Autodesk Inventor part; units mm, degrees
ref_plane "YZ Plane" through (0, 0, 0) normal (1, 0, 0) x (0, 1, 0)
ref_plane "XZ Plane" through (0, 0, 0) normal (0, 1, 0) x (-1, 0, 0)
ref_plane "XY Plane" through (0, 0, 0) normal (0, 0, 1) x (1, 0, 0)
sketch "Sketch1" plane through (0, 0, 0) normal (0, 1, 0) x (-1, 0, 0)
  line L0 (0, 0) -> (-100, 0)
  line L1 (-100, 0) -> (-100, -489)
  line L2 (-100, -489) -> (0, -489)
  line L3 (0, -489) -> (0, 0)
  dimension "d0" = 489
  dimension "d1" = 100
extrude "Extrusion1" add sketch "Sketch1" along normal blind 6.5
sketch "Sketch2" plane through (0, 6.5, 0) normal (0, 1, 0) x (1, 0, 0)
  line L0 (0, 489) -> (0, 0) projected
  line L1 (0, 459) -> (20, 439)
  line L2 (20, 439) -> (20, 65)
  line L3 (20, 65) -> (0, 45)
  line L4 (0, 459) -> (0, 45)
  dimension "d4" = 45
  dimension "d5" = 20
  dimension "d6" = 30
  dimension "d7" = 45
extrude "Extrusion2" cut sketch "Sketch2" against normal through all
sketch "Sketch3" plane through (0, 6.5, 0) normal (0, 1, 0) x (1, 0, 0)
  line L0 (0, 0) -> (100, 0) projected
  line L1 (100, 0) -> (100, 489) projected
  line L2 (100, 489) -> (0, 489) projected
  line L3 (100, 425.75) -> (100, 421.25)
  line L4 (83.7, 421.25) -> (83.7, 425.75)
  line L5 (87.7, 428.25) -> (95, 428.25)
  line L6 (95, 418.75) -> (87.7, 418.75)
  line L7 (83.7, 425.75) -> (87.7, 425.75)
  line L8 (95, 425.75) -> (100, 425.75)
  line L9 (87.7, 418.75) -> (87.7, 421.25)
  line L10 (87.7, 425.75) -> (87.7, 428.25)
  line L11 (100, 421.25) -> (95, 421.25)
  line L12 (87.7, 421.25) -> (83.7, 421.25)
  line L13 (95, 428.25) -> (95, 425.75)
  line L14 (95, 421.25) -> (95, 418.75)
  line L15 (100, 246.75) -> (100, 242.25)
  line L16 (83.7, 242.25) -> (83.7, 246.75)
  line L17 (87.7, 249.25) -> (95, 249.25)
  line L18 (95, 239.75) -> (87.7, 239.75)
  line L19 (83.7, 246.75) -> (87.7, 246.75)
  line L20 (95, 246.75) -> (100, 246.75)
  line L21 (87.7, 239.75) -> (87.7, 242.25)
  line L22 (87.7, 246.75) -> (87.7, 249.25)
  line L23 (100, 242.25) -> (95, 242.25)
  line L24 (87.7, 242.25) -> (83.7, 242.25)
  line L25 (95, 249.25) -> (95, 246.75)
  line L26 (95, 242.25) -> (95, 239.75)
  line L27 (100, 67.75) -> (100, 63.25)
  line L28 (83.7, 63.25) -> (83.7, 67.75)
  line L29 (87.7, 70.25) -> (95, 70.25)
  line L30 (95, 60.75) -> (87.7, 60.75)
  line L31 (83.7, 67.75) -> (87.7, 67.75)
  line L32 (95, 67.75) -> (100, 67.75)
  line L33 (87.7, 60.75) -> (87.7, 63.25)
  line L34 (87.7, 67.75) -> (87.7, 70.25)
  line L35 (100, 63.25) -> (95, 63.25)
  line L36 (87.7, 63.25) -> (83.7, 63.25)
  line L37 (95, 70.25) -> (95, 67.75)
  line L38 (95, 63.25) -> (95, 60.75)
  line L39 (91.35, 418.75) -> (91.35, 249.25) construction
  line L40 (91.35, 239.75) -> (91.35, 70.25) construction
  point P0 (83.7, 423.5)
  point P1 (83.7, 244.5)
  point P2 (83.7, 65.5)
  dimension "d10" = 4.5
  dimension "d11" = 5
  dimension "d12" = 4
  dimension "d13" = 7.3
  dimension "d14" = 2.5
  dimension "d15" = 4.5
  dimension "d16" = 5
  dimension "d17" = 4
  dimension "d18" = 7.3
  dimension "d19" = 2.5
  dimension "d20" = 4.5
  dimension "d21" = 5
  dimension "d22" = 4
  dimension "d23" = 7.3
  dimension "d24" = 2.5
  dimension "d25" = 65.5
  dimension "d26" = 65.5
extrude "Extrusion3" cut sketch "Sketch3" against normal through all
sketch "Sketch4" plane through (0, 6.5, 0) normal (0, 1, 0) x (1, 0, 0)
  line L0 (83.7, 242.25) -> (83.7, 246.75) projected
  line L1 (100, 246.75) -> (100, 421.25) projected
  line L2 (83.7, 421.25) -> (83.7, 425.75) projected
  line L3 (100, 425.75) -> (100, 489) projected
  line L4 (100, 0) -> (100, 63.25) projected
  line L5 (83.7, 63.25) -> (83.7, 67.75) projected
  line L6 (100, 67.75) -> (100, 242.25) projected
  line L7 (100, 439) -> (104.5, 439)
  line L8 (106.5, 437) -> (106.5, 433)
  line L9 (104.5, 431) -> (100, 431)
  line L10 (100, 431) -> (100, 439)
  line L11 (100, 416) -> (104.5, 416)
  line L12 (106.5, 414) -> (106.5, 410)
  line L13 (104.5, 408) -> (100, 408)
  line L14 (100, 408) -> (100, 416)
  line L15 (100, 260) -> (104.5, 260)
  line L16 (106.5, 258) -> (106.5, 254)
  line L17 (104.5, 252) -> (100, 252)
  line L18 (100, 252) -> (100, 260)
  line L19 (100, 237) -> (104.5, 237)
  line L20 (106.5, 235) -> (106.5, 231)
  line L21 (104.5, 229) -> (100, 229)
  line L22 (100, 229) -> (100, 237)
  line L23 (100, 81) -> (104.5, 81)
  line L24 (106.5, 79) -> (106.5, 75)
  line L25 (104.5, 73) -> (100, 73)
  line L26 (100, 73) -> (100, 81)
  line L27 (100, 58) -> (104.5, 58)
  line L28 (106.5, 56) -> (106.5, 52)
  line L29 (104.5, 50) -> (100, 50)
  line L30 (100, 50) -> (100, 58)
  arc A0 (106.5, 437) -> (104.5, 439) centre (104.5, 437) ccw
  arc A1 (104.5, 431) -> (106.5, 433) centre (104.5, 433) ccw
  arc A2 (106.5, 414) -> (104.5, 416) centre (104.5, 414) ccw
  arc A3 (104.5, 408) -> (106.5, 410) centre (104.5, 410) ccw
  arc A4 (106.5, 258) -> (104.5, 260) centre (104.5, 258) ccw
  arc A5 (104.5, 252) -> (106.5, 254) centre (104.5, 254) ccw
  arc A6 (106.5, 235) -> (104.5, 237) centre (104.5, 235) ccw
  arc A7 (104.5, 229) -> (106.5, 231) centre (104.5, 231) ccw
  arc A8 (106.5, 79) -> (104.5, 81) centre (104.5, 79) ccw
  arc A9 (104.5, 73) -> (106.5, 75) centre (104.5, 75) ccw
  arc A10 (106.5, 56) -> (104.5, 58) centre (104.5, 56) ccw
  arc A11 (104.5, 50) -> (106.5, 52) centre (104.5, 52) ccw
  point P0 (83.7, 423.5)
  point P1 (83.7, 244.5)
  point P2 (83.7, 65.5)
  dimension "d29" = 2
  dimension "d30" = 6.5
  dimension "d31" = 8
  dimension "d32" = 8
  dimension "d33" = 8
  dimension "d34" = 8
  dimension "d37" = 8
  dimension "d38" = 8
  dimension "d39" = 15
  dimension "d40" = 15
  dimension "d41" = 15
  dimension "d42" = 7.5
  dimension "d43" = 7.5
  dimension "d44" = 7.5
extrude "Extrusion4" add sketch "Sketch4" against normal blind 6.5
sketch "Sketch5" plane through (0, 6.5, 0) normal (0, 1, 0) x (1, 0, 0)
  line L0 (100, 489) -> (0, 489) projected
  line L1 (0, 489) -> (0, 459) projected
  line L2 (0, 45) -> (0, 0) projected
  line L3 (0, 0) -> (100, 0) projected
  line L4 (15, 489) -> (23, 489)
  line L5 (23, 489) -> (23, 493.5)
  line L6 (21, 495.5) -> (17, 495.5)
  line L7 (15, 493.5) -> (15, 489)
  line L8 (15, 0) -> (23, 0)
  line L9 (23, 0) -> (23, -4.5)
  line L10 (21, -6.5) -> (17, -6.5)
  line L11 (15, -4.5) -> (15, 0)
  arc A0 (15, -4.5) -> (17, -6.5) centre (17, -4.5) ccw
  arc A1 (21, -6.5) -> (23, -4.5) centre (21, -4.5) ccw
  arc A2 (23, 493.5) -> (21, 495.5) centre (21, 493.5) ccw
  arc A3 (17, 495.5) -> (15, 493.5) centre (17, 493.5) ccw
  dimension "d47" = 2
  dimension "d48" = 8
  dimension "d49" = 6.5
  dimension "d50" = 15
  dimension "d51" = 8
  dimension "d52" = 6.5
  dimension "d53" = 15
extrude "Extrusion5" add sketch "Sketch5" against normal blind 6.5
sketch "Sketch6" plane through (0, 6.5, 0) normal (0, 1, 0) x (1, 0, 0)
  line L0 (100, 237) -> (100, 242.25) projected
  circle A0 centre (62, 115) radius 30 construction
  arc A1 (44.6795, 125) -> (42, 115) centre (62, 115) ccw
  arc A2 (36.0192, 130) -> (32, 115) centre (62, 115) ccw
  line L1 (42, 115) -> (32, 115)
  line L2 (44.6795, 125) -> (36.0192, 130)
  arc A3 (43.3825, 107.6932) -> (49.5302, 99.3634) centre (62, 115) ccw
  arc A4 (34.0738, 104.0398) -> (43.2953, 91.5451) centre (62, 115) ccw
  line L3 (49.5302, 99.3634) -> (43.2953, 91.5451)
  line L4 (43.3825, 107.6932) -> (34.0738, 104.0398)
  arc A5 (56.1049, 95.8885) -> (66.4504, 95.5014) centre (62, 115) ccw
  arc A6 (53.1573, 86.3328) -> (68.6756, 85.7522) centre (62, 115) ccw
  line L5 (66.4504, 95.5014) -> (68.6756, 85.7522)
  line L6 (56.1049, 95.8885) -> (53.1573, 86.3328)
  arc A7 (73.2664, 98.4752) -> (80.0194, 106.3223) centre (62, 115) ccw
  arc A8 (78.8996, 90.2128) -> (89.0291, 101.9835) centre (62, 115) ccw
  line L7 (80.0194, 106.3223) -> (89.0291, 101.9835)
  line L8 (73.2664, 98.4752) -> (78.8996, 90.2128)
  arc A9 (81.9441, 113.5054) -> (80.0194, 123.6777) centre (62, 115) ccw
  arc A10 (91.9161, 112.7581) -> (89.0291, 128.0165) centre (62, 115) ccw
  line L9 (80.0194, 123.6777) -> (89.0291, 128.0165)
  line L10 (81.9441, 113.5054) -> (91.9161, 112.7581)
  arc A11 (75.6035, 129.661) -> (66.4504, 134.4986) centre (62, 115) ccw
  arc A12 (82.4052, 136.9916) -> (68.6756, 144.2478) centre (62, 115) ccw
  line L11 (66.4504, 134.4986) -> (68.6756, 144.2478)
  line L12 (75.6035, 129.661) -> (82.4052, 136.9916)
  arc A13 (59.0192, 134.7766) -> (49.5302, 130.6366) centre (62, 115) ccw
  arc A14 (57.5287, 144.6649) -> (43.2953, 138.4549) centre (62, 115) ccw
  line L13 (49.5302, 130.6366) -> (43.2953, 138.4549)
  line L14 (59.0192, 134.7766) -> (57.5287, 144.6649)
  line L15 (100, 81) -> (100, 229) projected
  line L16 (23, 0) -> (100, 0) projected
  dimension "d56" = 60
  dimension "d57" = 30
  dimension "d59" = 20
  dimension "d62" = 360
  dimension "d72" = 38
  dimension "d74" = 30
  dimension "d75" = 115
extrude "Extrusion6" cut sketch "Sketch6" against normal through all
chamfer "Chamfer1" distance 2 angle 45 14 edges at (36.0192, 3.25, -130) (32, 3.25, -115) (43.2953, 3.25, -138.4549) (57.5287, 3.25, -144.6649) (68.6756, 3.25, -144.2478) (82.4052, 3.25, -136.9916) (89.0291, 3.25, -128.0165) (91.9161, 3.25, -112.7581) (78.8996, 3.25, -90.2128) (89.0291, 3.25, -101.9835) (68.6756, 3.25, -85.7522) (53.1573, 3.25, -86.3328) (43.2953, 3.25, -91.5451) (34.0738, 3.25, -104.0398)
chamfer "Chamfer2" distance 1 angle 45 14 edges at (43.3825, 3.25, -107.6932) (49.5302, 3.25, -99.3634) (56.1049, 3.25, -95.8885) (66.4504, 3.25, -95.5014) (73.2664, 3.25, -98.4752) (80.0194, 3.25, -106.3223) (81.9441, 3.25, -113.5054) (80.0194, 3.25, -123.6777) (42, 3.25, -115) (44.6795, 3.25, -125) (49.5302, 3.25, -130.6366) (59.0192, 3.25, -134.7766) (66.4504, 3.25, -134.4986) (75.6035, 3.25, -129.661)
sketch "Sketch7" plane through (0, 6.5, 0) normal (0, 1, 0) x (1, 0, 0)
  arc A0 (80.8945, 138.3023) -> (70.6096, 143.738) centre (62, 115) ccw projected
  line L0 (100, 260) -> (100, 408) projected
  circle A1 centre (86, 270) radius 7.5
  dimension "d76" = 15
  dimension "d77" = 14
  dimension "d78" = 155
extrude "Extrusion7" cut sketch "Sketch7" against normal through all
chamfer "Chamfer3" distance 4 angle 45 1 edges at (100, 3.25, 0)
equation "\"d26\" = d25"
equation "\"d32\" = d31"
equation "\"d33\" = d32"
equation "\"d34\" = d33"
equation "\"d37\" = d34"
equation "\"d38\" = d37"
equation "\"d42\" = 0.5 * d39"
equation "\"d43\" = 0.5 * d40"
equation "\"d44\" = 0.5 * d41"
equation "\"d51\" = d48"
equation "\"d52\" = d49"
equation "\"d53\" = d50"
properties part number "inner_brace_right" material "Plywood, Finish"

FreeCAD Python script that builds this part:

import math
import FreeCAD as App
import Part
import Sketcher
Q = App.Units.Quantity


def edges_at(feature, points):
    """Names of the edges that pass closest to the given points."""
    edges = feature.Shape.Edges
    near = lambda p: min(range(len(edges)), key=lambda i: edges[i].distToShape(Part.Vertex(*p))[0])
    return sorted({f"Edge{near(p) + 1}" for p in points})

doc = App.newDocument("Part")
body = doc.addObject("PartDesign::Body", "Body")

# Sketch on XZ plane
sketch1 = doc.addObject("Sketcher::SketchObject", "Sketch")
body.addObject(sketch1)
sketch1.AttachmentSupport = (doc.XZ_Plane, [""])
sketch1.MapMode = "FlatFace"
sketch1.addGeometry(Part.LineSegment(App.Vector(0, -489, 0), App.Vector(0, 0, 0)), False)
sketch1.addGeometry(Part.LineSegment(App.Vector(0, 0, 0), App.Vector(100, 0, 0)), False)
sketch1.addGeometry(Part.LineSegment(App.Vector(100, 0, 0), App.Vector(100, -489, 0)), False)
sketch1.addGeometry(Part.LineSegment(App.Vector(100, -489, 0), App.Vector(0, -489, 0)), False)
sketch1.addConstraint(Sketcher.Constraint("Coincident", 0, 2, 1, 1))
sketch1.addConstraint(Sketcher.Constraint("Coincident", 1, 2, 2, 1))
sketch1.addConstraint(Sketcher.Constraint("Coincident", 2, 2, 3, 1))
sketch1.addConstraint(Sketcher.Constraint("Coincident", 3, 2, 0, 1))
sketch1.addConstraint(Sketcher.Constraint("Vertical", 0))
sketch1.addConstraint(Sketcher.Constraint("Horizontal", 1))
sketch1.addConstraint(Sketcher.Constraint("Vertical", 2))
sketch1.addConstraint(Sketcher.Constraint("Horizontal", 3))
sketch1.addConstraint(Sketcher.Constraint("Coincident", 0, 2, -1, 1))
sketch1.addConstraint(Sketcher.Constraint("DistanceX", 1, 1, 1, 2, Q("100 mm")))
sketch1.addConstraint(Sketcher.Constraint("DistanceY", 0, 1, 0, 2, Q("489 mm")))
pad1 = doc.addObject("PartDesign::Pad", "Pad")
body.addObject(pad1)
pad1.Profile = sketch1
pad1.Length = 6.5
pad1.Reversed = True

# Sketch on XZ plane
sketch2 = doc.addObject("Sketcher::SketchObject", "Sketch001")
body.addObject(sketch2)
sketch2.AttachmentSupport = (doc.XZ_Plane, [""])
sketch2.MapMode = "FlatFace"
sketch2.AttachmentOffset = App.Placement(App.Vector(0, 0, -6.5), App.Rotation())
sketch2.addGeometry(Part.LineSegment(App.Vector(20, -439, 0), App.Vector(0, -459, 0)), False)
sketch2.addGeometry(Part.LineSegment(App.Vector(0, -459, 0), App.Vector(0, -45, 0)), False)
sketch2.addGeometry(Part.LineSegment(App.Vector(0, -45, 0), App.Vector(20, -65, 0)), False)
sketch2.addGeometry(Part.LineSegment(App.Vector(20, -65, 0), App.Vector(20, -439, 0)), False)
sketch2.addConstraint(Sketcher.Constraint("Coincident", 0, 2, 1, 1))
sketch2.addConstraint(Sketcher.Constraint("Coincident", 1, 2, 2, 1))
sketch2.addConstraint(Sketcher.Constraint("Coincident", 2, 2, 3, 1))
sketch2.addConstraint(Sketcher.Constraint("Coincident", 3, 2, 0, 1))
sketch2.addConstraint(Sketcher.Constraint("Vertical", 1))
sketch2.addConstraint(Sketcher.Constraint("Vertical", 3))
sketch2.addConstraint(Sketcher.Constraint("PointOnObject", 0, 2, -2))
sketch2.addConstraint(Sketcher.Constraint("Perpendicular", 0, 2))
sketch2.addConstraint(Sketcher.Constraint("Equal", 0, 2))
sketch2.addConstraint(Sketcher.Constraint("DistanceY", 1, 2, -1, 1, Q("45 mm")))
sketch2.addConstraint(Sketcher.Constraint("DistanceX", -1, 1, 2, 2, Q("20 mm")))
sketch2.addConstraint(Sketcher.Constraint("DistanceY", 1, 1, 1, 2, Q("414 mm")))
pocket1 = doc.addObject("PartDesign::Pocket", "Pocket")
body.addObject(pocket1)
pocket1.Profile = sketch2
pocket1.Type = "ThroughAll"
pocket1.Reversed = True

# Sketch on XZ plane
sketch3 = doc.addObject("Sketcher::SketchObject", "Sketch002")
body.addObject(sketch3)
sketch3.AttachmentSupport = (doc.XZ_Plane, [""])
sketch3.MapMode = "FlatFace"
sketch3.AttachmentOffset = App.Placement(App.Vector(0, 0, -6.5), App.Rotation())
sketch3.addGeometry(Part.LineSegment(App.Vector(95, -63.25, 0), App.Vector(100, -63.25, 0)), False)
sketch3.addGeometry(Part.LineSegment(App.Vector(100, -63.25, 0), App.Vector(100, -67.75, 0)), False)
sketch3.addGeometry(Part.LineSegment(App.Vector(100, -67.75, 0), App.Vector(95, -67.75, 0)), False)
sketch3.addGeometry(Part.LineSegment(App.Vector(95, -67.75, 0), App.Vector(95, -70.25, 0)), False)
sketch3.addGeometry(Part.LineSegment(App.Vector(95, -70.25, 0), App.Vector(87.7, -70.25, 0)), False)
sketch3.addGeometry(Part.LineSegment(App.Vector(87.7, -70.25, 0), App.Vector(87.7, -67.75, 0)), False)
sketch3.addGeometry(Part.LineSegment(App.Vector(87.7, -67.75, 0), App.Vector(83.7, -67.75, 0)), False)
sketch3.addGeometry(Part.LineSegment(App.Vector(83.7, -67.75, 0), App.Vector(83.7, -63.25, 0)), False)
sketch3.addGeometry(Part.LineSegment(App.Vector(83.7, -63.25, 0), App.Vector(87.7, -63.25, 0)), False)
sketch3.addGeometry(Part.LineSegment(App.Vector(87.7, -63.25, 0), App.Vector(87.7, -60.75, 0)), False)
sketch3.addGeometry(Part.LineSegment(App.Vector(87.7, -60.75, 0), App.Vector(95, -60.75, 0)), False)
sketch3.addGeometry(Part.LineSegment(App.Vector(95, -60.75, 0), App.Vector(95, -63.25, 0)), False)
sketch3.addGeometry(Part.LineSegment(App.Vector(95, -421.25, 0), App.Vector(100, -421.25, 0)), False)
sketch3.addGeometry(Part.LineSegment(App.Vector(100, -421.25, 0), App.Vector(100, -425.75, 0)), False)
sketch3.addGeometry(Part.LineSegment(App.Vector(100, -425.75, 0), App.Vector(95, -425.75, 0)), False)
sketch3.addGeometry(Part.LineSegment(App.Vector(95, -425.75, 0), App.Vector(95, -428.25, 0)), False)
sketch3.addGeometry(Part.LineSegment(App.Vector(95, -428.25, 0), App.Vector(87.7, -428.25, 0)), False)
sketch3.addGeometry(Part.LineSegment(App.Vector(87.7, -428.25, 0), App.Vector(87.7, -425.75, 0)), False)
sketch3.addGeometry(Part.LineSegment(App.Vector(87.7, -425.75, 0), App.Vector(83.7, -425.75, 0)), False)
sketch3.addGeometry(Part.LineSegment(App.Vector(83.7, -425.75, 0), App.Vector(83.7, -421.25, 0)), False)
sketch3.addGeometry(Part.LineSegment(App.Vector(83.7, -421.25, 0), App.Vector(87.7, -421.25, 0)), False)
sketch3.addGeometry(Part.LineSegment(App.Vector(87.7, -421.25, 0), App.Vector(87.7, -418.75, 0)), False)
sketch3.addGeometry(Part.LineSegment(App.Vector(87.7, -418.75, 0), App.Vector(95, -418.75, 0)), False)
sketch3.addGeometry(Part.LineSegment(App.Vector(95, -418.75, 0), App.Vector(95, -421.25, 0)), False)
sketch3.addGeometry(Part.LineSegment(App.Vector(95, -242.25, 0), App.Vector(100, -242.25, 0)), False)
sketch3.addGeometry(Part.LineSegment(App.Vector(100, -242.25, 0), App.Vector(100, -246.75, 0)), False)
sketch3.addGeometry(Part.LineSegment(App.Vector(100, -246.75, 0), App.Vector(95, -246.75, 0)), False)
sketch3.addGeometry(Part.LineSegment(App.Vector(95, -246.75, 0), App.Vector(95, -249.25, 0)), False)
sketch3.addGeometry(Part.LineSegment(App.Vector(95, -249.25, 0), App.Vector(87.7, -249.25, 0)), False)
sketch3.addGeometry(Part.LineSegment(App.Vector(87.7, -249.25, 0), App.Vector(87.7, -246.75, 0)), False)
sketch3.addGeometry(Part.LineSegment(App.Vector(87.7, -246.75, 0), App.Vector(83.7, -246.75, 0)), False)
sketch3.addGeometry(Part.LineSegment(App.Vector(83.7, -246.75, 0), App.Vector(83.7, -242.25, 0)), False)
sketch3.addGeometry(Part.LineSegment(App.Vector(83.7, -242.25, 0), App.Vector(87.7, -242.25, 0)), False)
sketch3.addGeometry(Part.LineSegment(App.Vector(87.7, -242.25, 0), App.Vector(87.7, -239.75, 0)), False)
sketch3.addGeometry(Part.LineSegment(App.Vector(87.7, -239.75, 0), App.Vector(95, -239.75, 0)), False)
sketch3.addGeometry(Part.LineSegment(App.Vector(95, -239.75, 0), App.Vector(95, -242.25, 0)), False)
sketch3.addConstraint(Sketcher.Constraint("Coincident", 0, 2, 1, 1))
sketch3.addConstraint(Sketcher.Constraint("Coincident", 1, 2, 2, 1))
sketch3.addConstraint(Sketcher.Constraint("Coincident", 2, 2, 3, 1))
sketch3.addConstraint(Sketcher.Constraint("Coincident", 3, 2, 4, 1))
sketch3.addConstraint(Sketcher.Constraint("Coincident", 4, 2, 5, 1))
sketch3.addConstraint(Sketcher.Constraint("Coincident", 5, 2, 6, 1))
sketch3.addConstraint(Sketcher.Constraint("Coincident", 6, 2, 7, 1))
sketch3.addConstraint(Sketcher.Constraint("Coincident", 7, 2, 8, 1))
sketch3.addConstraint(Sketcher.Constraint("Coincident", 8, 2, 9, 1))
sketch3.addConstraint(Sketcher.Constraint("Coincident", 9, 2, 10, 1))
sketch3.addConstraint(Sketcher.Constraint("Coincident", 10, 2, 11, 1))
sketch3.addConstraint(Sketcher.Constraint("Coincident", 11, 2, 0, 1))
sketch3.addConstraint(Sketcher.Constraint("Coincident", 12, 2, 13, 1))
sketch3.addConstraint(Sketcher.Constraint("Coincident", 13, 2, 14, 1))
sketch3.addConstraint(Sketcher.Constraint("Coincident", 14, 2, 15, 1))
sketch3.addConstraint(Sketcher.Constraint("Coincident", 15, 2, 16, 1))
sketch3.addConstraint(Sketcher.Constraint("Coincident", 16, 2, 17, 1))
sketch3.addConstraint(Sketcher.Constraint("Coincident", 17, 2, 18, 1))
sketch3.addConstraint(Sketcher.Constraint("Coincident", 18, 2, 19, 1))
sketch3.addConstraint(Sketcher.Constraint("Coincident", 19, 2, 20, 1))
sketch3.addConstraint(Sketcher.Constraint("Coincident", 20, 2, 21, 1))
sketch3.addConstraint(Sketcher.Constraint("Coincident", 21, 2, 22, 1))
sketch3.addConstraint(Sketcher.Constraint("Coincident", 22, 2, 23, 1))
sketch3.addConstraint(Sketcher.Constraint("Coincident", 23, 2, 12, 1))
sketch3.addConstraint(Sketcher.Constraint("Coincident", 24, 2, 25, 1))
sketch3.addConstraint(Sketcher.Constraint("Coincident", 25, 2, 26, 1))
sketch3.addConstraint(Sketcher.Constraint("Coincident", 26, 2, 27, 1))
sketch3.addConstraint(Sketcher.Constraint("Coincident", 27, 2, 28, 1))
sketch3.addConstraint(Sketcher.Constraint("Coincident", 28, 2, 29, 1))
sketch3.addConstraint(Sketcher.Constraint("Coincident", 29, 2, 30, 1))
sketch3.addConstraint(Sketcher.Constraint("Coincident", 30, 2, 31, 1))
sketch3.addConstraint(Sketcher.Constraint("Coincident", 31, 2, 32, 1))
sketch3.addConstraint(Sketcher.Constraint("Coincident", 32, 2, 33, 1))
sketch3.addConstraint(Sketcher.Constraint("Coincident", 33, 2, 34, 1))
sketch3.addConstraint(Sketcher.Constraint("Coincident", 34, 2, 35, 1))
sketch3.addConstraint(Sketcher.Constraint("Coincident", 35, 2, 24, 1))
sketch3.addConstraint(Sketcher.Constraint("Horizontal", 0))
sketch3.addConstraint(Sketcher.Constraint("Vertical", 1))
sketch3.addConstraint(Sketcher.Constraint("Horizontal", 2))
sketch3.addConstraint(Sketcher.Constraint("Vertical", 3))
sketch3.addConstraint(Sketcher.Constraint("Horizontal", 4))
sketch3.addConstraint(Sketcher.Constraint("Vertical", 5))
sketch3.addConstraint(Sketcher.Constraint("Horizontal", 6))
sketch3.addConstraint(Sketcher.Constraint("Vertical", 7))
sketch3.addConstraint(Sketcher.Constraint("Horizontal", 8))
sketch3.addConstraint(Sketcher.Constraint("Vertical", 9))
sketch3.addConstraint(Sketcher.Constraint("Horizontal", 10))
sketch3.addConstraint(Sketcher.Constraint("Vertical", 11))
sketch3.addConstraint(Sketcher.Constraint("Horizontal", 12))
sketch3.addConstraint(Sketcher.Constraint("Vertical", 13))
sketch3.addConstraint(Sketcher.Constraint("Horizontal", 14))
sketch3.addConstraint(Sketcher.Constraint("Vertical", 15))
sketch3.addConstraint(Sketcher.Constraint("Horizontal", 16))
sketch3.addConstraint(Sketcher.Constraint("Vertical", 17))
sketch3.addConstraint(Sketcher.Constraint("Horizontal", 18))
sketch3.addConstraint(Sketcher.Constraint("Vertical", 19))
sketch3.addConstraint(Sketcher.Constraint("Horizontal", 20))
sketch3.addConstraint(Sketcher.Constraint("Vertical", 21))
sketch3.addConstraint(Sketcher.Constraint("Horizontal", 22))
sketch3.addConstraint(Sketcher.Constraint("Vertical", 23))
sketch3.addConstraint(Sketcher.Constraint("Horizontal", 24))
sketch3.addConstraint(Sketcher.Constraint("Vertical", 25))
sketch3.addConstraint(Sketcher.Constraint("Horizontal", 26))
sketch3.addConstraint(Sketcher.Constraint("Vertical", 27))
sketch3.addConstraint(Sketcher.Constraint("Horizontal", 28))
sketch3.addConstraint(Sketcher.Constraint("Vertical", 29))
sketch3.addConstraint(Sketcher.Constraint("Horizontal", 30))
sketch3.addConstraint(Sketcher.Constraint("Vertical", 31))
sketch3.addConstraint(Sketcher.Constraint("Horizontal", 32))
sketch3.addConstraint(Sketcher.Constraint("Vertical", 33))
sketch3.addConstraint(Sketcher.Constraint("Horizontal", 34))
sketch3.addConstraint(Sketcher.Constraint("Vertical", 35))
sketch3.addConstraint(Sketcher.Constraint("Horizontal", 2, 2, 5, 2))
sketch3.addConstraint(Sketcher.Constraint("Horizontal", 0, 2, 7, 2))
sketch3.addConstraint(Sketcher.Constraint("Horizontal", 14, 2, 17, 2))
sketch3.addConstraint(Sketcher.Constraint("Horizontal", 12, 2, 19, 2))
sketch3.addConstraint(Sketcher.Constraint("Horizontal", 26, 2, 29, 2))
sketch3.addConstraint(Sketcher.Constraint("Horizontal", 24, 2, 31, 2))
sketch3.addConstraint(Sketcher.Constraint("Vertical", 5, 2, 8, 2))
sketch3.addConstraint(Sketcher.Constraint("Vertical", 3, 2, 10, 2))
sketch3.addConstraint(Sketcher.Constraint("Vertical", 1, 2, 12, 2))
sketch3.addConstraint(Sketcher.Constraint("Vertical", 11, 2, 14, 2))
sketch3.addConstraint(Sketcher.Constraint("Vertical", 9, 2, 16, 2))
sketch3.addConstraint(Sketcher.Constraint("Vertical", 7, 2, 18, 2))
sketch3.addConstraint(Sketcher.Constraint("Vertical", 17, 2, 20, 2))
sketch3.addConstraint(Sketcher.Constraint("Vertical", 15, 2, 22, 2))
sketch3.addConstraint(Sketcher.Constraint("Vertical", 13, 2, 24, 2))
sketch3.addConstraint(Sketcher.Constraint("Vertical", 23, 2, 26, 2))
sketch3.addConstraint(Sketcher.Constraint("Vertical", 21, 2, 28, 2))
sketch3.addConstraint(Sketcher.Constraint("Vertical", 19, 2, 30, 2))
sketch3.addConstraint(Sketcher.Constraint("Vertical", 29, 2, 32, 2))
sketch3.addConstraint(Sketcher.Constraint("Vertical", 27, 2, 34, 2))
sketch3.addConstraint(Sketcher.Constraint("Equal", 5, 9))
sketch3.addConstraint(Sketcher.Constraint("Equal", 7, 13))
sketch3.addConstraint(Sketcher.Constraint("Equal", 11, 15))
sketch3.addConstraint(Sketcher.Constraint("Equal", 17, 21))
sketch3.addConstraint(Sketcher.Constraint("Equal", 19, 25))
sketch3.addConstraint(Sketcher.Constraint("Equal", 23, 27))
sketch3.addConstraint(Sketcher.Constraint("Equal", 29, 33))
sketch3.addConstraint(Sketcher.Constraint("DistanceX", 0, 1, 0, 2, Q("5 mm")))
sketch3.addConstraint(Sketcher.Constraint("DistanceX", 6, 2, 6, 1, Q("4 mm")))
sketch3.addConstraint(Sketcher.Constraint("DistanceX", 4, 2, 4, 1, Q("7.3 mm")))
sketch3.addConstraint(Sketcher.Constraint("DistanceY", 1, 2, 1, 1, Q("4.5 mm")))
sketch3.addConstraint(Sketcher.Constraint("DistanceY", 3, 2, 3, 1, Q("2.5 mm")))
sketch3.addConstraint(Sketcher.Constraint("DistanceX", -1, 1, 0, 2, Q("100 mm")))
sketch3.addConstraint(Sketcher.Constraint("DistanceY", 12, 2, 3, 2, Q("351 mm")))
sketch3.addConstraint(Sketcher.Constraint("DistanceY", 24, 2, 3, 2, Q("172 mm")))
sketch3.addConstraint(Sketcher.Constraint("DistanceY", 0, 2, -1, 1, Q("63.25 mm")))
pocket2 = doc.addObject("PartDesign::Pocket", "Pocket001")
body.addObject(pocket2)
pocket2.Profile = sketch3
pocket2.Type = "ThroughAll"
pocket2.Reversed = True

# Sketch on XZ plane
sketch4 = doc.addObject("Sketcher::SketchObject", "Sketch003")
body.addObject(sketch4)
sketch4.AttachmentSupport = (doc.XZ_Plane, [""])
sketch4.MapMode = "FlatFace"
sketch4.AttachmentOffset = App.Placement(App.Vector(0, 0, -6.5), App.Rotation())
sketch4.addGeometry(Part.LineSegment(App.Vector(100, -416, 0), App.Vector(100, -408, 0)), False)
sketch4.addGeometry(Part.LineSegment(App.Vector(100, -408, 0), App.Vector(104.5, -408, 0)), False)
sketch4.addGeometry(Part.ArcOfCircle(Part.Circle(App.Vector(104.5, -410, 0), App.Vector(0, 0, 1), 2), math.radians(0), math.radians(90)), False)
sketch4.addGeometry(Part.LineSegment(App.Vector(106.5, -410, 0), App.Vector(106.5, -414, 0)), False)
sketch4.addGeometry(Part.ArcOfCircle(Part.Circle(App.Vector(104.5, -414, 0), App.Vector(0, 0, 1), 2), math.radians(-90), math.radians(0)), False)
sketch4.addGeometry(Part.LineSegment(App.Vector(104.5, -416, 0), App.Vector(100, -416, 0)), False)
sketch4.addGeometry(Part.LineSegment(App.Vector(100, -260, 0), App.Vector(100, -252, 0)), False)
sketch4.addGeometry(Part.LineSegment(App.Vector(100, -252, 0), App.Vector(104.5, -252, 0)), False)
sketch4.addGeometry(Part.ArcOfCircle(Part.Circle(App.Vector(104.5, -254, 0), App.Vector(0, 0, 1), 2), math.radians(0), math.radians(90)), False)
sketch4.addGeometry(Part.LineSegment(App.Vector(106.5, -254, 0), App.Vector(106.5, -258, 0)), False)
sketch4.addGeometry(Part.ArcOfCircle(Part.Circle(App.Vector(104.5, -258, 0), App.Vector(0, 0, 1), 2), math.radians(-90), math.radians(0)), False)
sketch4.addGeometry(Part.LineSegment(App.Vector(104.5, -260, 0), App.Vector(100, -260, 0)), False)
sketch4.addGeometry(Part.LineSegment(App.Vector(100, -439, 0), App.Vector(100, -431, 0)), False)
sketch4.addGeometry(Part.LineSegment(App.Vector(100, -431, 0), App.Vector(104.5, -431, 0)), False)
sketch4.addGeometry(Part.ArcOfCircle(Part.Circle(App.Vector(104.5, -433, 0), App.Vector(0, 0, 1), 2), math.radians(0), math.radians(90)), False)
sketch4.addGeometry(Part.LineSegment(App.Vector(106.5, -433, 0), App.Vector(106.5, -437, 0)), False)
sketch4.addGeometry(Part.ArcOfCircle(Part.Circle(App.Vector(104.5, -437, 0), App.Vector(0, 0, 1), 2), math.radians(-90), math.radians(0)), False)
sketch4.addGeometry(Part.LineSegment(App.Vector(104.5, -439, 0), App.Vector(100, -439, 0)), False)
sketch4.addGeometry(Part.LineSegment(App.Vector(100, -58, 0), App.Vector(100, -50, 0)), False)
sketch4.addGeometry(Part.LineSegment(App.Vector(100, -50, 0), App.Vector(104.5, -50, 0)), False)
sketch4.addGeometry(Part.ArcOfCircle(Part.Circle(App.Vector(104.5, -52, 0), App.Vector(0, 0, 1), 2), math.radians(0), math.radians(90)), False)
sketch4.addGeometry(Part.LineSegment(App.Vector(106.5, -52, 0), App.Vector(106.5, -56, 0)), False)
sketch4.addGeometry(Part.ArcOfCircle(Part.Circle(App.Vector(104.5, -56, 0), App.Vector(0, 0, 1), 2), math.radians(-90), math.radians(0)), False)
sketch4.addGeometry(Part.LineSegment(App.Vector(104.5, -58, 0), App.Vector(100, -58, 0)), False)
sketch4.addGeometry(Part.LineSegment(App.Vector(100, -237, 0), App.Vector(100, -229, 0)), False)
sketch4.addGeometry(Part.LineSegment(App.Vector(100, -229, 0), App.Vector(104.5, -229, 0)), False)
sketch4.addGeometry(Part.ArcOfCircle(Part.Circle(App.Vector(104.5, -231, 0), App.Vector(0, 0, 1), 2), math.radians(0), math.radians(90)), False)
sketch4.addGeometry(Part.LineSegment(App.Vector(106.5, -231, 0), App.Vector(106.5, -235, 0)), False)
sketch4.addGeometry(Part.ArcOfCircle(Part.Circle(App.Vector(104.5, -235, 0), App.Vector(0, 0, 1), 2), math.radians(-90), math.radians(0)), False)
sketch4.addGeometry(Part.LineSegment(App.Vector(104.5, -237, 0), App.Vector(100, -237, 0)), False)
sketch4.addGeometry(Part.LineSegment(App.Vector(100, -81, 0), App.Vector(100, -73, 0)), False)
sketch4.addGeometry(Part.LineSegment(App.Vector(100, -73, 0), App.Vector(104.5, -73, 0)), False)
sketch4.addGeometry(Part.ArcOfCircle(Part.Circle(App.Vector(104.5, -75, 0), App.Vector(0, 0, 1), 2), math.radians(0), math.radians(90)), False)
sketch4.addGeometry(Part.LineSegment(App.Vector(106.5, -75, 0), App.Vector(106.5, -79, 0)), False)
sketch4.addGeometry(Part.ArcOfCircle(Part.Circle(App.Vector(104.5, -79, 0), App.Vector(0, 0, 1), 2), math.radians(-90), math.radians(0)), False)
sketch4.addGeometry(Part.LineSegment(App.Vector(104.5, -81, 0), App.Vector(100, -81, 0)), False)
sketch4.addConstraint(Sketcher.Constraint("Coincident", 0, 2, 1, 1))
sketch4.addConstraint(Sketcher.Constraint("Tangent", 1, 2, 2, 2))
sketch4.addConstraint(Sketcher.Constraint("Tangent", 2, 1, 3, 1))
sketch4.addConstraint(Sketcher.Constraint("Tangent", 3, 2, 4, 2))
sketch4.addConstraint(Sketcher.Constraint("Tangent", 4, 1, 5, 1))
sketch4.addConstraint(Sketcher.Constraint("Coincident", 5, 2, 0, 1))
sketch4.addConstraint(Sketcher.Constraint("Coincident", 6, 2, 7, 1))
sketch4.addConstraint(Sketcher.Constraint("Tangent", 7, 2, 8, 2))
sketch4.addConstraint(Sketcher.Constraint("Tangent", 8, 1, 9, 1))
sketch4.addConstraint(Sketcher.Constraint("Tangent", 9, 2, 10, 2))
sketch4.addConstraint(Sketcher.Constraint("Tangent", 10, 1, 11, 1))
sketch4.addConstraint(Sketcher.Constraint("Coincident", 11, 2, 6, 1))
sketch4.addConstraint(Sketcher.Constraint("Coincident", 12, 2, 13, 1))
sketch4.addConstraint(Sketcher.Constraint("Tangent", 13, 2, 14, 2))
sketch4.addConstraint(Sketcher.Constraint("Tangent", 14, 1, 15, 1))
sketch4.addConstraint(Sketcher.Constraint("Tangent", 15, 2, 16, 2))
sketch4.addConstraint(Sketcher.Constraint("Tangent", 16, 1, 17, 1))
sketch4.addConstraint(Sketcher.Constraint("Coincident", 17, 2, 12, 1))
sketch4.addConstraint(Sketcher.Constraint("Coincident", 18, 2, 19, 1))
sketch4.addConstraint(Sketcher.Constraint("Tangent", 19, 2, 20, 2))
sketch4.addConstraint(Sketcher.Constraint("Tangent", 20, 1, 21, 1))
sketch4.addConstraint(Sketcher.Constraint("Tangent", 21, 2, 22, 2))
sketch4.addConstraint(Sketcher.Constraint("Tangent", 22, 1, 23, 1))
sketch4.addConstraint(Sketcher.Constraint("Coincident", 23, 2, 18, 1))
sketch4.addConstraint(Sketcher.Constraint("Coincident", 24, 2, 25, 1))
sketch4.addConstraint(Sketcher.Constraint("Tangent", 25, 2, 26, 2))
sketch4.addConstraint(Sketcher.Constraint("Tangent", 26, 1, 27, 1))
sketch4.addConstraint(Sketcher.Constraint("Tangent", 27, 2, 28, 2))
sketch4.addConstraint(Sketcher.Constraint("Tangent", 28, 1, 29, 1))
sketch4.addConstraint(Sketcher.Constraint("Coincident", 29, 2, 24, 1))
sketch4.addConstraint(Sketcher.Constraint("Coincident", 30, 2, 31, 1))
sketch4.addConstraint(Sketcher.Constraint("Tangent", 31, 2, 32, 2))
sketch4.addConstraint(Sketcher.Constraint("Tangent", 32, 1, 33, 1))
sketch4.addConstraint(Sketcher.Constraint("Tangent", 33, 2, 34, 2))
sketch4.addConstraint(Sketcher.Constraint("Tangent", 34, 1, 35, 1))
sketch4.addConstraint(Sketcher.Constraint("Coincident", 35, 2, 30, 1))
sketch4.addConstraint(Sketcher.Constraint("Vertical", 0))
sketch4.addConstraint(Sketcher.Constraint("Horizontal", 1))
sketch4.addConstraint(Sketcher.Constraint("Vertical", 3))
sketch4.addConstraint(Sketcher.Constraint("Horizontal", 5))
sketch4.addConstraint(Sketcher.Constraint("Vertical", 6))
sketch4.addConstraint(Sketcher.Constraint("Horizontal", 7))
sketch4.addConstraint(Sketcher.Constraint("Vertical", 9))
sketch4.addConstraint(Sketcher.Constraint("Horizontal", 11))
sketch4.addConstraint(Sketcher.Constraint("Vertical", 12))
sketch4.addConstraint(Sketcher.Constraint("Horizontal", 13))
sketch4.addConstraint(Sketcher.Constraint("Vertical", 15))
sketch4.addConstraint(Sketcher.Constraint("Horizontal", 17))
sketch4.addConstraint(Sketcher.Constraint("Vertical", 18))
sketch4.addConstraint(Sketcher.Constraint("Horizontal", 19))
sketch4.addConstraint(Sketcher.Constraint("Vertical", 21))
sketch4.addConstraint(Sketcher.Constraint("Horizontal", 23))
sketch4.addConstraint(Sketcher.Constraint("Vertical", 24))
sketch4.addConstraint(Sketcher.Constraint("Horizontal", 25))
sketch4.addConstraint(Sketcher.Constraint("Vertical", 27))
sketch4.addConstraint(Sketcher.Constraint("Horizontal", 29))
sketch4.addConstraint(Sketcher.Constraint("Vertical", 30))
sketch4.addConstraint(Sketcher.Constraint("Horizontal", 31))
sketch4.addConstraint(Sketcher.Constraint("Vertical", 33))
sketch4.addConstraint(Sketcher.Constraint("Horizontal", 35))
sketch4.addConstraint(Sketcher.Constraint("Equal", 2, 4))
sketch4.addConstraint(Sketcher.Constraint("Equal", 4, 8))
sketch4.addConstraint(Sketcher.Constraint("Equal", 8, 10))
sketch4.addConstraint(Sketcher.Constraint("Equal", 10, 14))
sketch4.addConstraint(Sketcher.Constraint("Equal", 14, 16))
sketch4.addConstraint(Sketcher.Constraint("Equal", 16, 20))
sketch4.addConstraint(Sketcher.Constraint("Equal", 20, 22))
sketch4.addConstraint(Sketcher.Constraint("Equal", 22, 26))
sketch4.addConstraint(Sketcher.Constraint("Equal", 26, 28))
sketch4.addConstraint(Sketcher.Constraint("Equal", 28, 32))
sketch4.addConstraint(Sketcher.Constraint("Equal", 32, 34))
sketch4.addConstraint(Sketcher.Constraint("Vertical", 4, 3, 8, 3))
sketch4.addConstraint(Sketcher.Constraint("Vertical", 10, 3, 14, 3))
sketch4.addConstraint(Sketcher.Constraint("Vertical", 16, 3, 20, 3))
sketch4.addConstraint(Sketcher.Constraint("Vertical", 22, 3, 26, 3))
sketch4.addConstraint(Sketcher.Constraint("Vertical", 28, 3, 32, 3))
sketch4.addConstraint(Sketcher.Constraint("Vertical", 5, 2, 6, 2))
sketch4.addConstraint(Sketcher.Constraint("Vertical", 11, 2, 12, 2))
sketch4.addConstraint(Sketcher.Constraint("Vertical", 17, 2, 18, 2))
sketch4.addConstraint(Sketcher.Constraint("Vertical", 23, 2, 24, 2))
sketch4.addConstraint(Sketcher.Constraint("Vertical", 29, 2, 30, 2))
sketch4.addConstraint(Sketcher.Constraint("Equal", 0, 6))
sketch4.addConstraint(Sketcher.Constraint("Equal", 6, 12))
sketch4.addConstraint(Sketcher.Constraint("Equal", 12, 18))
sketch4.addConstraint(Sketcher.Constraint("Equal", 18, 24))
sketch4.addConstraint(Sketcher.Constraint("Equal", 24, 30))
sketch4.addConstraint(Sketcher.Constraint("Radius", 2, Q("2 mm")))
sketch4.addConstraint(Sketcher.Constraint("DistanceY", 0, 1, 0, 2, Q("8 mm")))
sketch4.addConstraint(Sketcher.Constraint("DistanceY", 12, 2, 5, 2, Q("15 mm")))
sketch4.addConstraint(Sketcher.Constraint("DistanceY", 30, 2, 23, 2, Q("15 mm")))
sketch4.addConstraint(Sketcher.Constraint("DistanceX", 0, 2, 2, 1, Q("6.5 mm")))
sketch4.addConstraint(Sketcher.Constraint("DistanceY", 2, 3, -1, 1, Q("410 mm")))
sketch4.addConstraint(Sketcher.Constraint("DistanceY", 8, 3, -1, 1, Q("254 mm")))
sketch4.addConstraint(Sketcher.Constraint("DistanceY", 20, 3, -1, 1, Q("52 mm")))
sketch4.addConstraint(Sketcher.Constraint("DistanceY", 26, 3, -1, 1, Q("231 mm")))
sketch4.addConstraint(Sketcher.Constraint("DistanceX", -1, 1, 0, 2, Q("100 mm")))
pad2 = doc.addObject("PartDesign::Pad", "Pad001")
body.addObject(pad2)
pad2.Profile = sketch4
pad2.Length = 6.5

# Sketch on XZ plane
sketch5 = doc.addObject("Sketcher::SketchObject", "Sketch004")
body.addObject(sketch5)
sketch5.AttachmentSupport = (doc.XZ_Plane, [""])
sketch5.MapMode = "FlatFace"
sketch5.AttachmentOffset = App.Placement(App.Vector(0, 0, -6.5), App.Rotation())
sketch5.addGeometry(Part.LineSegment(App.Vector(15, -489, 0), App.Vector(23, -489, 0)), False)
sketch5.addGeometry(Part.LineSegment(App.Vector(23, -489, 0), App.Vector(23, -493.5, 0)), False)
sketch5.addGeometry(Part.ArcOfCircle(Part.Circle(App.Vector(21, -493.5, 0), App.Vector(0, 0, 1), 2), math.radians(-90), math.radians(0)), False)
sketch5.addGeometry(Part.LineSegment(App.Vector(21, -495.5, 0), App.Vector(17, -495.5, 0)), False)
sketch5.addGeometry(Part.ArcOfCircle(Part.Circle(App.Vector(17, -493.5, 0), App.Vector(0, 0, 1), 2), math.radians(180), math.radians(270)), False)
sketch5.addGeometry(Part.LineSegment(App.Vector(15, -493.5, 0), App.Vector(15, -489, 0)), False)
sketch5.addGeometry(Part.LineSegment(App.Vector(23, 0, 0), App.Vector(15, 0, 0)), False)
sketch5.addGeometry(Part.LineSegment(App.Vector(15, 0, 0), App.Vector(15, 4.5, 0)), False)
sketch5.addGeometry(Part.ArcOfCircle(Part.Circle(App.Vector(17, 4.5, 0), App.Vector(0, 0, 1), 2), math.radians(90), math.radians(180)), False)
sketch5.addGeometry(Part.LineSegment(App.Vector(17, 6.5, 0), App.Vector(21, 6.5, 0)), False)
sketch5.addGeometry(Part.ArcOfCircle(Part.Circle(App.Vector(21, 4.5, 0), App.Vector(0, 0, 1), 2), math.radians(0), math.radians(90)), False)
sketch5.addGeometry(Part.LineSegment(App.Vector(23, 4.5, 0), App.Vector(23, 0, 0)), False)
sketch5.addConstraint(Sketcher.Constraint("Coincident", 0, 2, 1, 1))
sketch5.addConstraint(Sketcher.Constraint("Tangent", 1, 2, 2, 2))
sketch5.addConstraint(Sketcher.Constraint("Tangent", 2, 1, 3, 1))
sketch5.addConstraint(Sketcher.Constraint("Tangent", 3, 2, 4, 2))
sketch5.addConstraint(Sketcher.Constraint("Tangent", 4, 1, 5, 1))
sketch5.addConstraint(Sketcher.Constraint("Coincident", 5, 2, 0, 1))
sketch5.addConstraint(Sketcher.Constraint("Coincident", 6, 2, 7, 1))
sketch5.addConstraint(Sketcher.Constraint("Tangent", 7, 2, 8, 2))
sketch5.addConstraint(Sketcher.Constraint("Tangent", 8, 1, 9, 1))
sketch5.addConstraint(Sketcher.Constraint("Tangent", 9, 2, 10, 2))
sketch5.addConstraint(Sketcher.Constraint("Tangent", 10, 1, 11, 1))
sketch5.addConstraint(Sketcher.Constraint("Coincident", 11, 2, 6, 1))
sketch5.addConstraint(Sketcher.Constraint("Horizontal", 0))
sketch5.addConstraint(Sketcher.Constraint("Vertical", 1))
sketch5.addConstraint(Sketcher.Constraint("Horizontal", 3))
sketch5.addConstraint(Sketcher.Constraint("Vertical", 5))
sketch5.addConstraint(Sketcher.Constraint("Horizontal", 6))
sketch5.addConstraint(Sketcher.Constraint("Vertical", 7))
sketch5.addConstraint(Sketcher.Constraint("Horizontal", 9))
sketch5.addConstraint(Sketcher.Constraint("Vertical", 11))
sketch5.addConstraint(Sketcher.Constraint("Equal", 2, 4))
sketch5.addConstraint(Sketcher.Constraint("Equal", 4, 8))
sketch5.addConstraint(Sketcher.Constraint("Equal", 8, 10))
sketch5.addConstraint(Sketcher.Constraint("PointOnObject", 6, 2, -1))
sketch5.addConstraint(Sketcher.Constraint("Vertical", 4, 3, 8, 3))
sketch5.addConstraint(Sketcher.Constraint("Vertical", 2, 3, 10, 3))
sketch5.addConstraint(Sketcher.Constraint("Equal", 5, 7))
sketch5.addConstraint(Sketcher.Constraint("Radius", 2, Q("2 mm")))
sketch5.addConstraint(Sketcher.Constraint("DistanceX", 0, 1, 0, 2, Q("8 mm")))
sketch5.addConstraint(Sketcher.Constraint("DistanceX", -1, 1, 4, 1, Q("15 mm")))
sketch5.addConstraint(Sketcher.Constraint("DistanceY", -1, 1, 8, 1, Q("6.5 mm")))
sketch5.addConstraint(Sketcher.Constraint("DistanceY", 0, 2, -1, 1, Q("489 mm")))
pad3 = doc.addObject("PartDesign::Pad", "Pad002")
body.addObject(pad3)
pad3.Profile = sketch5
pad3.Length = 6.5

# Sketch on XZ plane
sketch6 = doc.addObject("Sketcher::SketchObject", "Sketch005")
body.addObject(sketch6)
sketch6.AttachmentSupport = (doc.XZ_Plane, [""])
sketch6.MapMode = "FlatFace"
sketch6.AttachmentOffset = App.Placement(App.Vector(0, 0, -6.5), App.Rotation())
sketch6.addGeometry(Part.ArcOfCircle(Part.Circle(App.Vector(62, -115, 0), App.Vector(0, 0, 1), 20.000041), math.radians(180), math.radians(210.000012)), False)
sketch6.addGeometry(Part.LineSegment(App.Vector(44.6795, -125, 0), App.Vector(36.0192, -130, 0)), False)
sketch6.addGeometry(Part.ArcOfCircle(Part.Circle(App.Vector(62, -115, 0), App.Vector(0, 0, 1), 29.999977), math.radians(180), math.radians(209.999964)), False)
sketch6.addGeometry(Part.LineSegment(App.Vector(32, -115, 0), App.Vector(42, -115, 0)), False)
sketch6.addGeometry(Part.ArcOfCircle(Part.Circle(App.Vector(62, -115, 0), App.Vector(0, 0, 1), 19.999977), math.radians(128.57149), math.radians(158.571509)), False)
sketch6.addGeometry(Part.LineSegment(App.Vector(43.3825, -107.6932, 0), App.Vector(34.0738, -104.0398, 0)), False)
sketch6.addGeometry(Part.ArcOfCircle(Part.Circle(App.Vector(62, -115, 0), App.Vector(0, 0, 1), 29.999977), math.radians(128.57149), math.radians(158.571475)), False)
sketch6.addGeometry(Part.LineSegment(App.Vector(43.2953, -91.5451, 0), App.Vector(49.5302, -99.3634, 0)), False)
sketch6.addGeometry(Part.ArcOfCircle(Part.Circle(App.Vector(62, -115, 0), App.Vector(0, 0, 1), 19.999977), math.radians(77.142936), math.radians(107.142811)), False)
sketch6.addGeometry(Part.LineSegment(App.Vector(56.1049, -95.8885, 0), App.Vector(53.1573, -86.3328, 0)), False)
sketch6.addGeometry(Part.ArcOfCircle(Part.Circle(App.Vector(61.999824, -114.998964, 0), App.Vector(0, 0, 1), 29.998987), math.radians(77.142126), math.radians(107.143192)), False)
sketch6.addGeometry(Part.LineSegment(App.Vector(68.6756, -85.7522, 0), App.Vector(66.4504, -95.5014, 0)), False)
sketch6.addGeometry(Part.ArcOfCircle(Part.Circle(App.Vector(62, -115, 0), App.Vector(0, 0, 1), 20.000041), math.radians(25.714323), math.radians(55.714328)), False)
sketch6.addGeometry(Part.LineSegment(App.Vector(73.2664, -98.4752, 0), App.Vector(78.8996, -90.2128, 0)), False)
sketch6.addGeometry(Part.ArcOfCircle(Part.Circle(App.Vector(62, -115, 0), App.Vector(0, 0, 1), 29.999977), math.radians(25.714237), math.radians(55.714328)), False)
sketch6.addGeometry(Part.LineSegment(App.Vector(89.0291, -101.9835, 0), App.Vector(80.0194, -106.3223, 0)), False)
sketch6.addGeometry(Part.ArcOfCircle(Part.Circle(App.Vector(62, -115, 0), App.Vector(0, 0, 1), 20.000041), math.radians(-25.714323), math.radians(4.285704)), False)
sketch6.addGeometry(Part.LineSegment(App.Vector(81.9441, -113.5054, 0), App.Vector(91.9161, -112.7581, 0)), False)
sketch6.addGeometry(Part.ArcOfCircle(Part.Circle(App.Vector(62, -115, 0), App.Vector(0, 0, 1), 30.000044), math.radians(-25.714237), math.radians(4.285711)), False)
sketch6.addGeometry(Part.LineSegment(App.Vector(89.0291, -128.0165, 0), App.Vector(80.0194, -123.6777, 0)), False)
sketch6.addGeometry(Part.ArcOfCircle(Part.Circle(App.Vector(62, -115, 0), App.Vector(0, 0, 1), 20.000041), math.radians(-77.142936), math.radians(-47.142689)), False)
sketch6.addGeometry(Part.LineSegment(App.Vector(75.6035, -129.661, 0), App.Vector(82.4052, -136.9916, 0)), False)
sketch6.addGeometry(Part.ArcOfCircle(Part.Circle(App.Vector(62.000745, -115.00105, 0), App.Vector(0, 0, 1), 29.998768), math.radians(-77.143834), math.radians(-47.142568)), False)
sketch6.addGeometry(Part.LineSegment(App.Vector(68.6756, -144.2478, 0), App.Vector(66.4504, -134.4986, 0)), False)
sketch6.addGeometry(Part.ArcOfCircle(Part.Circle(App.Vector(62, -115, 0), App.Vector(0, 0, 1), 20.000016), math.radians(-128.57149), math.radians(-98.571307)), False)
sketch6.addGeometry(Part.LineSegment(App.Vector(59.0192, -134.7766, 0), App.Vector(57.5287, -144.6649, 0)), False)
sketch6.addGeometry(Part.ArcOfCircle(Part.Circle(App.Vector(62, -115, 0), App.Vector(0, 0, 1), 29.999977), math.radians(-128.57149), math.radians(-98.571496)), False)
sketch6.addGeometry(Part.LineSegment(App.Vector(43.2953, -138.4549, 0), App.Vector(49.5302, -130.6366, 0)), False)
sketch6.addConstraint(Sketcher.Constraint("Coincident", 0, 2, 1, 1))
sketch6.addConstraint(Sketcher.Constraint("Coincident", 1, 2, 2, 2))
sketch6.addConstraint(Sketcher.Constraint("Coincident", 2, 1, 3, 1))
sketch6.addConstraint(Sketcher.Constraint("Coincident", 3, 2, 0, 1))
sketch6.addConstraint(Sketcher.Constraint("Coincident", 4, 2, 5, 1))
sketch6.addConstraint(Sketcher.Constraint("Coincident", 5, 2, 6, 2))
sketch6.addConstraint(Sketcher.Constraint("Coincident", 6, 1, 7, 1))
sketch6.addConstraint(Sketcher.Constraint("Coincident", 7, 2, 4, 1))
sketch6.addConstraint(Sketcher.Constraint("Coincident", 8, 2, 9, 1))
sketch6.addConstraint(Sketcher.Constraint("Coincident", 9, 2, 10, 2))
sketch6.addConstraint(Sketcher.Constraint("Coincident", 10, 1, 11, 1))
sketch6.addConstraint(Sketcher.Constraint("Coincident", 11, 2, 8, 1))
sketch6.addConstraint(Sketcher.Constraint("Coincident", 12, 2, 13, 1))
sketch6.addConstraint(Sketcher.Constraint("Coincident", 13, 2, 14, 2))
sketch6.addConstraint(Sketcher.Constraint("Coincident", 14, 1, 15, 1))
sketch6.addConstraint(Sketcher.Constraint("Coincident", 15, 2, 12, 1))
sketch6.addConstraint(Sketcher.Constraint("Coincident", 16, 2, 17, 1))
sketch6.addConstraint(Sketcher.Constraint("Coincident", 17, 2, 18, 2))
sketch6.addConstraint(Sketcher.Constraint("Coincident", 18, 1, 19, 1))
sketch6.addConstraint(Sketcher.Constraint("Coincident", 19, 2, 16, 1))
sketch6.addConstraint(Sketcher.Constraint("Coincident", 20, 2, 21, 1))
sketch6.addConstraint(Sketcher.Constraint("Coincident", 21, 2, 22, 2))
sketch6.addConstraint(Sketcher.Constraint("Coincident", 22, 1, 23, 1))
sketch6.addConstraint(Sketcher.Constraint("Coincident", 23, 2, 20, 1))
sketch6.addConstraint(Sketcher.Constraint("Coincident", 24, 2, 25, 1))
sketch6.addConstraint(Sketcher.Constraint("Coincident", 25, 2, 26, 2))
sketch6.addConstraint(Sketcher.Constraint("Coincident", 26, 1, 27, 1))
sketch6.addConstraint(Sketcher.Constraint("Coincident", 27, 2, 24, 1))
sketch6.addConstraint(Sketcher.Constraint("Horizontal", 3))
sketch6.addConstraint(Sketcher.Constraint("Coincident", 2, 3, 0, 3))
sketch6.addConstraint(Sketcher.Constraint("Coincident", 4, 3, 0, 3))
sketch6.addConstraint(Sketcher.Constraint("Coincident", 6, 3, 0, 3))
sketch6.addConstraint(Sketcher.Constraint("Coincident", 8, 3, 0, 3))
sketch6.addConstraint(Sketcher.Constraint("Coincident", 12, 3, 0, 3))
sketch6.addConstraint(Sketcher.Constraint("Coincident", 14, 3, 0, 3))
sketch6.addConstraint(Sketcher.Constraint("Coincident", 16, 3, 0, 3))
sketch6.addConstraint(Sketcher.Constraint("Coincident", 18, 3, 0, 3))
sketch6.addConstraint(Sketcher.Constraint("Coincident", 20, 3, 0, 3))
sketch6.addConstraint(Sketcher.Constraint("Coincident", 24, 3, 0, 3))
sketch6.addConstraint(Sketcher.Constraint("Coincident", 26, 3, 0, 3))
sketch6.addConstraint(Sketcher.Constraint("Equal", 0, 4))
sketch6.addConstraint(Sketcher.Constraint("Equal", 2, 6))
sketch6.addConstraint(Sketcher.Constraint("Equal", 4, 8))
sketch6.addConstraint(Sketcher.Constraint("Equal", 8, 12))
sketch6.addConstraint(Sketcher.Constraint("Equal", 6, 14))
sketch6.addConstraint(Sketcher.Constraint("Equal", 12, 16))
sketch6.addConstraint(Sketcher.Constraint("Equal", 14, 18))
sketch6.addConstraint(Sketcher.Constraint("Equal", 16, 20))
sketch6.addConstraint(Sketcher.Constraint("Equal", 20, 24))
sketch6.addConstraint(Sketcher.Constraint("Equal", 18, 26))
sketch6.addConstraint(Sketcher.Constraint("Horizontal", 26, 3, 2, 1))
sketch6.addConstraint(Sketcher.Constraint("Vertical", 8, 3, 10, 3))
sketch6.addConstraint(Sketcher.Constraint("Vertical", 14, 1, 18, 1))
sketch6.addConstraint(Sketcher.Constraint("Vertical", 15, 2, 19, 2))
sketch6.addConstraint(Sketcher.Constraint("Vertical", 10, 1, 22, 1))
sketch6.addConstraint(Sketcher.Constraint("Vertical", 11, 2, 23, 2))
sketch6.addConstraint(Sketcher.Constraint("Vertical", 6, 1, 26, 1))
sketch6.addConstraint(Sketcher.Constraint("Vertical", 7, 2, 27, 2))
sketch6.addConstraint(Sketcher.Constraint("Equal", 7, 9))
sketch6.addConstraint(Sketcher.Constraint("Equal", 9, 11))
sketch6.addConstraint(Sketcher.Constraint("Equal", 19, 21))
sketch6.addConstraint(Sketcher.Constraint("Equal", 21, 23))
sketch6.addConstraint(Sketcher.Constraint("Radius", 0, Q("20 mm")))
sketch6.addConstraint(Sketcher.Constraint("Radius", 2, Q("30 mm")))
sketch6.addConstraint(Sketcher.Constraint("DistanceY", 0, 3, -1, 1, Q("115 mm")))
sketch6.addConstraint(Sketcher.Constraint("Angle", 1, Q("-150.0001 deg")))
sketch6.addConstraint(Sketcher.Constraint("DistanceX", -1, 1, 0, 3, Q("62 mm")))
sketch6.addConstraint(Sketcher.Constraint("DistanceY", 0, 2, -1, 1, Q("125 mm")))
sketch6.addConstraint(Sketcher.Constraint("Radius", 22, Q("29.9988 mm")))
sketch6.addConstraint(Sketcher.Constraint("DistanceY", 13, 2, 9, 2, Q("3.88 mm")))
sketch6.addConstraint(Sketcher.Constraint("DistanceY", 20, 2, 22, 3, Q("14.66 mm")))
sketch6.addConstraint(Sketcher.Constraint("DistanceY", 22, 1, 19, 2, Q("20.57 mm")))
sketch6.addConstraint(Sketcher.Constraint("DistanceY", 25, 2, 26, 1, Q("6.21 mm")))
sketch6.addConstraint(Sketcher.Constraint("DistanceY", 24, 2, 27, 2, Q("4.14 mm")))
sketch6.addConstraint(Sketcher.Constraint("DistanceY", 6, 1, -1, 1, Q("91.545 mm")))
sketch6.addConstraint(Sketcher.Constraint("DistanceX", -1, 1, 8, 2, Q("56.105 mm")))
sketch6.addConstraint(Sketcher.Constraint("DistanceX", -1, 1, 14, 1, Q("89.029 mm")))
sketch6.addConstraint(Sketcher.Constraint("DistanceX", -1, 1, 16, 2, Q("81.944 mm")))
sketch6.addConstraint(Sketcher.Constraint("DistanceX", -1, 1, 17, 2, Q("91.916 mm")))
sketch6.addConstraint(Sketcher.Constraint("DistanceX", 4, 2, 0, 2, Q("1.297 mm")))
sketch6.addConstraint(Sketcher.Constraint("DistanceX", 6, 1, 7, 2, Q("6.235 mm")))
sketch6.addConstraint(Sketcher.Constraint("DistanceX", 6, 1, 9, 2, Q("9.862 mm")))
sketch6.addConstraint(Sketcher.Constraint("DistanceY", 5, 2, 9, 2, Q("17.707 mm")))
sketch6.addConstraint(Sketcher.Constraint("DistanceY", 6, 1, 10, 1, Q("5.793 mm")))
sketch6.addConstraint(Sketcher.Constraint("DistanceX", 9, 2, 11, 2, Q("13.293 mm")))
sketch6.addConstraint(Sketcher.Constraint("DistanceX", 11, 2, 12, 2, Q("6.816 mm")))
sketch6.addConstraint(Sketcher.Constraint("DistanceX", 21, 2, 18, 1, Q("6.624 mm")))
pocket3 = doc.addObject("PartDesign::Pocket", "Pocket002")
body.addObject(pocket3)
pocket3.Profile = sketch6
pocket3.Type = "ThroughAll"
pocket3.Reversed = True
doc.recompute()

chamfer = doc.addObject("PartDesign::Chamfer", "Chamfer")
body.addObject(chamfer)
chamfer.Base = (pocket3, edges_at(pocket3, [
    (36.019, 3.25, -130),
    (32, 3.25, -115),
    (43.295, 3.25, -138.455),
    (57.529, 3.25, -144.665),
    (68.676, 3.25, -144.248),
    (82.405, 3.25, -136.992),
    (89.029, 3.25, -128.017),
    (91.916, 3.25, -112.758),
    (78.9, 3.25, -90.213),
    (89.029, 3.25, -101.984),
    (68.676, 3.25, -85.752),
    (53.157, 3.25, -86.333),
    (43.295, 3.25, -91.545),
    (34.074, 3.25, -104.04),
]))
chamfer.Size = 2
doc.recompute()

chamfer2 = doc.addObject("PartDesign::Chamfer", "Chamfer001")
body.addObject(chamfer2)
chamfer2.Base = (chamfer, edges_at(chamfer, [
    (43.383, 3.25, -107.693),
    (49.53, 3.25, -99.363),
    (56.105, 3.25, -95.888),
    (66.45, 3.25, -95.501),
    (73.266, 3.25, -98.475),
    (80.019, 3.25, -106.322),
    (81.944, 3.25, -113.505),
    (80.019, 3.25, -123.678),
    (42, 3.25, -115),
    (44.679, 3.25, -125),
    (49.53, 3.25, -130.637),
    (59.019, 3.25, -134.777),
    (66.45, 3.25, -134.499),
    (75.603, 3.25, -129.661),
]))
chamfer2.Size = 1

# Sketch on XZ plane
sketch7 = doc.addObject("Sketcher::SketchObject", "Sketch006")
body.addObject(sketch7)
sketch7.AttachmentSupport = (doc.XZ_Plane, [""])
sketch7.MapMode = "FlatFace"
sketch7.AttachmentOffset = App.Placement(App.Vector(0, 0, -6.5), App.Rotation())
sketch7.addGeometry(Part.Circle(App.Vector(86, -270, 0), App.Vector(0, 0, 1), 7.5), False)
sketch7.addConstraint(Sketcher.Constraint("Diameter", 0, Q("15 mm")))
sketch7.addConstraint(Sketcher.Constraint("DistanceX", -1, 1, 0, 3, Q("86 mm")))
sketch7.addConstraint(Sketcher.Constraint("DistanceY", 0, 3, -1, 1, Q("270 mm")))
pocket4 = doc.addObject("PartDesign::Pocket", "Pocket003")
body.addObject(pocket4)
pocket4.Profile = sketch7
pocket4.Type = "ThroughAll"
pocket4.Reversed = True
doc.recompute()

chamfer3 = doc.addObject("PartDesign::Chamfer", "Chamfer002")
body.addObject(chamfer3)
chamfer3.Base = (pocket4, edges_at(pocket4, [(100, 3.25, 0)]))
chamfer3.Size = 4

doc.recompute()
